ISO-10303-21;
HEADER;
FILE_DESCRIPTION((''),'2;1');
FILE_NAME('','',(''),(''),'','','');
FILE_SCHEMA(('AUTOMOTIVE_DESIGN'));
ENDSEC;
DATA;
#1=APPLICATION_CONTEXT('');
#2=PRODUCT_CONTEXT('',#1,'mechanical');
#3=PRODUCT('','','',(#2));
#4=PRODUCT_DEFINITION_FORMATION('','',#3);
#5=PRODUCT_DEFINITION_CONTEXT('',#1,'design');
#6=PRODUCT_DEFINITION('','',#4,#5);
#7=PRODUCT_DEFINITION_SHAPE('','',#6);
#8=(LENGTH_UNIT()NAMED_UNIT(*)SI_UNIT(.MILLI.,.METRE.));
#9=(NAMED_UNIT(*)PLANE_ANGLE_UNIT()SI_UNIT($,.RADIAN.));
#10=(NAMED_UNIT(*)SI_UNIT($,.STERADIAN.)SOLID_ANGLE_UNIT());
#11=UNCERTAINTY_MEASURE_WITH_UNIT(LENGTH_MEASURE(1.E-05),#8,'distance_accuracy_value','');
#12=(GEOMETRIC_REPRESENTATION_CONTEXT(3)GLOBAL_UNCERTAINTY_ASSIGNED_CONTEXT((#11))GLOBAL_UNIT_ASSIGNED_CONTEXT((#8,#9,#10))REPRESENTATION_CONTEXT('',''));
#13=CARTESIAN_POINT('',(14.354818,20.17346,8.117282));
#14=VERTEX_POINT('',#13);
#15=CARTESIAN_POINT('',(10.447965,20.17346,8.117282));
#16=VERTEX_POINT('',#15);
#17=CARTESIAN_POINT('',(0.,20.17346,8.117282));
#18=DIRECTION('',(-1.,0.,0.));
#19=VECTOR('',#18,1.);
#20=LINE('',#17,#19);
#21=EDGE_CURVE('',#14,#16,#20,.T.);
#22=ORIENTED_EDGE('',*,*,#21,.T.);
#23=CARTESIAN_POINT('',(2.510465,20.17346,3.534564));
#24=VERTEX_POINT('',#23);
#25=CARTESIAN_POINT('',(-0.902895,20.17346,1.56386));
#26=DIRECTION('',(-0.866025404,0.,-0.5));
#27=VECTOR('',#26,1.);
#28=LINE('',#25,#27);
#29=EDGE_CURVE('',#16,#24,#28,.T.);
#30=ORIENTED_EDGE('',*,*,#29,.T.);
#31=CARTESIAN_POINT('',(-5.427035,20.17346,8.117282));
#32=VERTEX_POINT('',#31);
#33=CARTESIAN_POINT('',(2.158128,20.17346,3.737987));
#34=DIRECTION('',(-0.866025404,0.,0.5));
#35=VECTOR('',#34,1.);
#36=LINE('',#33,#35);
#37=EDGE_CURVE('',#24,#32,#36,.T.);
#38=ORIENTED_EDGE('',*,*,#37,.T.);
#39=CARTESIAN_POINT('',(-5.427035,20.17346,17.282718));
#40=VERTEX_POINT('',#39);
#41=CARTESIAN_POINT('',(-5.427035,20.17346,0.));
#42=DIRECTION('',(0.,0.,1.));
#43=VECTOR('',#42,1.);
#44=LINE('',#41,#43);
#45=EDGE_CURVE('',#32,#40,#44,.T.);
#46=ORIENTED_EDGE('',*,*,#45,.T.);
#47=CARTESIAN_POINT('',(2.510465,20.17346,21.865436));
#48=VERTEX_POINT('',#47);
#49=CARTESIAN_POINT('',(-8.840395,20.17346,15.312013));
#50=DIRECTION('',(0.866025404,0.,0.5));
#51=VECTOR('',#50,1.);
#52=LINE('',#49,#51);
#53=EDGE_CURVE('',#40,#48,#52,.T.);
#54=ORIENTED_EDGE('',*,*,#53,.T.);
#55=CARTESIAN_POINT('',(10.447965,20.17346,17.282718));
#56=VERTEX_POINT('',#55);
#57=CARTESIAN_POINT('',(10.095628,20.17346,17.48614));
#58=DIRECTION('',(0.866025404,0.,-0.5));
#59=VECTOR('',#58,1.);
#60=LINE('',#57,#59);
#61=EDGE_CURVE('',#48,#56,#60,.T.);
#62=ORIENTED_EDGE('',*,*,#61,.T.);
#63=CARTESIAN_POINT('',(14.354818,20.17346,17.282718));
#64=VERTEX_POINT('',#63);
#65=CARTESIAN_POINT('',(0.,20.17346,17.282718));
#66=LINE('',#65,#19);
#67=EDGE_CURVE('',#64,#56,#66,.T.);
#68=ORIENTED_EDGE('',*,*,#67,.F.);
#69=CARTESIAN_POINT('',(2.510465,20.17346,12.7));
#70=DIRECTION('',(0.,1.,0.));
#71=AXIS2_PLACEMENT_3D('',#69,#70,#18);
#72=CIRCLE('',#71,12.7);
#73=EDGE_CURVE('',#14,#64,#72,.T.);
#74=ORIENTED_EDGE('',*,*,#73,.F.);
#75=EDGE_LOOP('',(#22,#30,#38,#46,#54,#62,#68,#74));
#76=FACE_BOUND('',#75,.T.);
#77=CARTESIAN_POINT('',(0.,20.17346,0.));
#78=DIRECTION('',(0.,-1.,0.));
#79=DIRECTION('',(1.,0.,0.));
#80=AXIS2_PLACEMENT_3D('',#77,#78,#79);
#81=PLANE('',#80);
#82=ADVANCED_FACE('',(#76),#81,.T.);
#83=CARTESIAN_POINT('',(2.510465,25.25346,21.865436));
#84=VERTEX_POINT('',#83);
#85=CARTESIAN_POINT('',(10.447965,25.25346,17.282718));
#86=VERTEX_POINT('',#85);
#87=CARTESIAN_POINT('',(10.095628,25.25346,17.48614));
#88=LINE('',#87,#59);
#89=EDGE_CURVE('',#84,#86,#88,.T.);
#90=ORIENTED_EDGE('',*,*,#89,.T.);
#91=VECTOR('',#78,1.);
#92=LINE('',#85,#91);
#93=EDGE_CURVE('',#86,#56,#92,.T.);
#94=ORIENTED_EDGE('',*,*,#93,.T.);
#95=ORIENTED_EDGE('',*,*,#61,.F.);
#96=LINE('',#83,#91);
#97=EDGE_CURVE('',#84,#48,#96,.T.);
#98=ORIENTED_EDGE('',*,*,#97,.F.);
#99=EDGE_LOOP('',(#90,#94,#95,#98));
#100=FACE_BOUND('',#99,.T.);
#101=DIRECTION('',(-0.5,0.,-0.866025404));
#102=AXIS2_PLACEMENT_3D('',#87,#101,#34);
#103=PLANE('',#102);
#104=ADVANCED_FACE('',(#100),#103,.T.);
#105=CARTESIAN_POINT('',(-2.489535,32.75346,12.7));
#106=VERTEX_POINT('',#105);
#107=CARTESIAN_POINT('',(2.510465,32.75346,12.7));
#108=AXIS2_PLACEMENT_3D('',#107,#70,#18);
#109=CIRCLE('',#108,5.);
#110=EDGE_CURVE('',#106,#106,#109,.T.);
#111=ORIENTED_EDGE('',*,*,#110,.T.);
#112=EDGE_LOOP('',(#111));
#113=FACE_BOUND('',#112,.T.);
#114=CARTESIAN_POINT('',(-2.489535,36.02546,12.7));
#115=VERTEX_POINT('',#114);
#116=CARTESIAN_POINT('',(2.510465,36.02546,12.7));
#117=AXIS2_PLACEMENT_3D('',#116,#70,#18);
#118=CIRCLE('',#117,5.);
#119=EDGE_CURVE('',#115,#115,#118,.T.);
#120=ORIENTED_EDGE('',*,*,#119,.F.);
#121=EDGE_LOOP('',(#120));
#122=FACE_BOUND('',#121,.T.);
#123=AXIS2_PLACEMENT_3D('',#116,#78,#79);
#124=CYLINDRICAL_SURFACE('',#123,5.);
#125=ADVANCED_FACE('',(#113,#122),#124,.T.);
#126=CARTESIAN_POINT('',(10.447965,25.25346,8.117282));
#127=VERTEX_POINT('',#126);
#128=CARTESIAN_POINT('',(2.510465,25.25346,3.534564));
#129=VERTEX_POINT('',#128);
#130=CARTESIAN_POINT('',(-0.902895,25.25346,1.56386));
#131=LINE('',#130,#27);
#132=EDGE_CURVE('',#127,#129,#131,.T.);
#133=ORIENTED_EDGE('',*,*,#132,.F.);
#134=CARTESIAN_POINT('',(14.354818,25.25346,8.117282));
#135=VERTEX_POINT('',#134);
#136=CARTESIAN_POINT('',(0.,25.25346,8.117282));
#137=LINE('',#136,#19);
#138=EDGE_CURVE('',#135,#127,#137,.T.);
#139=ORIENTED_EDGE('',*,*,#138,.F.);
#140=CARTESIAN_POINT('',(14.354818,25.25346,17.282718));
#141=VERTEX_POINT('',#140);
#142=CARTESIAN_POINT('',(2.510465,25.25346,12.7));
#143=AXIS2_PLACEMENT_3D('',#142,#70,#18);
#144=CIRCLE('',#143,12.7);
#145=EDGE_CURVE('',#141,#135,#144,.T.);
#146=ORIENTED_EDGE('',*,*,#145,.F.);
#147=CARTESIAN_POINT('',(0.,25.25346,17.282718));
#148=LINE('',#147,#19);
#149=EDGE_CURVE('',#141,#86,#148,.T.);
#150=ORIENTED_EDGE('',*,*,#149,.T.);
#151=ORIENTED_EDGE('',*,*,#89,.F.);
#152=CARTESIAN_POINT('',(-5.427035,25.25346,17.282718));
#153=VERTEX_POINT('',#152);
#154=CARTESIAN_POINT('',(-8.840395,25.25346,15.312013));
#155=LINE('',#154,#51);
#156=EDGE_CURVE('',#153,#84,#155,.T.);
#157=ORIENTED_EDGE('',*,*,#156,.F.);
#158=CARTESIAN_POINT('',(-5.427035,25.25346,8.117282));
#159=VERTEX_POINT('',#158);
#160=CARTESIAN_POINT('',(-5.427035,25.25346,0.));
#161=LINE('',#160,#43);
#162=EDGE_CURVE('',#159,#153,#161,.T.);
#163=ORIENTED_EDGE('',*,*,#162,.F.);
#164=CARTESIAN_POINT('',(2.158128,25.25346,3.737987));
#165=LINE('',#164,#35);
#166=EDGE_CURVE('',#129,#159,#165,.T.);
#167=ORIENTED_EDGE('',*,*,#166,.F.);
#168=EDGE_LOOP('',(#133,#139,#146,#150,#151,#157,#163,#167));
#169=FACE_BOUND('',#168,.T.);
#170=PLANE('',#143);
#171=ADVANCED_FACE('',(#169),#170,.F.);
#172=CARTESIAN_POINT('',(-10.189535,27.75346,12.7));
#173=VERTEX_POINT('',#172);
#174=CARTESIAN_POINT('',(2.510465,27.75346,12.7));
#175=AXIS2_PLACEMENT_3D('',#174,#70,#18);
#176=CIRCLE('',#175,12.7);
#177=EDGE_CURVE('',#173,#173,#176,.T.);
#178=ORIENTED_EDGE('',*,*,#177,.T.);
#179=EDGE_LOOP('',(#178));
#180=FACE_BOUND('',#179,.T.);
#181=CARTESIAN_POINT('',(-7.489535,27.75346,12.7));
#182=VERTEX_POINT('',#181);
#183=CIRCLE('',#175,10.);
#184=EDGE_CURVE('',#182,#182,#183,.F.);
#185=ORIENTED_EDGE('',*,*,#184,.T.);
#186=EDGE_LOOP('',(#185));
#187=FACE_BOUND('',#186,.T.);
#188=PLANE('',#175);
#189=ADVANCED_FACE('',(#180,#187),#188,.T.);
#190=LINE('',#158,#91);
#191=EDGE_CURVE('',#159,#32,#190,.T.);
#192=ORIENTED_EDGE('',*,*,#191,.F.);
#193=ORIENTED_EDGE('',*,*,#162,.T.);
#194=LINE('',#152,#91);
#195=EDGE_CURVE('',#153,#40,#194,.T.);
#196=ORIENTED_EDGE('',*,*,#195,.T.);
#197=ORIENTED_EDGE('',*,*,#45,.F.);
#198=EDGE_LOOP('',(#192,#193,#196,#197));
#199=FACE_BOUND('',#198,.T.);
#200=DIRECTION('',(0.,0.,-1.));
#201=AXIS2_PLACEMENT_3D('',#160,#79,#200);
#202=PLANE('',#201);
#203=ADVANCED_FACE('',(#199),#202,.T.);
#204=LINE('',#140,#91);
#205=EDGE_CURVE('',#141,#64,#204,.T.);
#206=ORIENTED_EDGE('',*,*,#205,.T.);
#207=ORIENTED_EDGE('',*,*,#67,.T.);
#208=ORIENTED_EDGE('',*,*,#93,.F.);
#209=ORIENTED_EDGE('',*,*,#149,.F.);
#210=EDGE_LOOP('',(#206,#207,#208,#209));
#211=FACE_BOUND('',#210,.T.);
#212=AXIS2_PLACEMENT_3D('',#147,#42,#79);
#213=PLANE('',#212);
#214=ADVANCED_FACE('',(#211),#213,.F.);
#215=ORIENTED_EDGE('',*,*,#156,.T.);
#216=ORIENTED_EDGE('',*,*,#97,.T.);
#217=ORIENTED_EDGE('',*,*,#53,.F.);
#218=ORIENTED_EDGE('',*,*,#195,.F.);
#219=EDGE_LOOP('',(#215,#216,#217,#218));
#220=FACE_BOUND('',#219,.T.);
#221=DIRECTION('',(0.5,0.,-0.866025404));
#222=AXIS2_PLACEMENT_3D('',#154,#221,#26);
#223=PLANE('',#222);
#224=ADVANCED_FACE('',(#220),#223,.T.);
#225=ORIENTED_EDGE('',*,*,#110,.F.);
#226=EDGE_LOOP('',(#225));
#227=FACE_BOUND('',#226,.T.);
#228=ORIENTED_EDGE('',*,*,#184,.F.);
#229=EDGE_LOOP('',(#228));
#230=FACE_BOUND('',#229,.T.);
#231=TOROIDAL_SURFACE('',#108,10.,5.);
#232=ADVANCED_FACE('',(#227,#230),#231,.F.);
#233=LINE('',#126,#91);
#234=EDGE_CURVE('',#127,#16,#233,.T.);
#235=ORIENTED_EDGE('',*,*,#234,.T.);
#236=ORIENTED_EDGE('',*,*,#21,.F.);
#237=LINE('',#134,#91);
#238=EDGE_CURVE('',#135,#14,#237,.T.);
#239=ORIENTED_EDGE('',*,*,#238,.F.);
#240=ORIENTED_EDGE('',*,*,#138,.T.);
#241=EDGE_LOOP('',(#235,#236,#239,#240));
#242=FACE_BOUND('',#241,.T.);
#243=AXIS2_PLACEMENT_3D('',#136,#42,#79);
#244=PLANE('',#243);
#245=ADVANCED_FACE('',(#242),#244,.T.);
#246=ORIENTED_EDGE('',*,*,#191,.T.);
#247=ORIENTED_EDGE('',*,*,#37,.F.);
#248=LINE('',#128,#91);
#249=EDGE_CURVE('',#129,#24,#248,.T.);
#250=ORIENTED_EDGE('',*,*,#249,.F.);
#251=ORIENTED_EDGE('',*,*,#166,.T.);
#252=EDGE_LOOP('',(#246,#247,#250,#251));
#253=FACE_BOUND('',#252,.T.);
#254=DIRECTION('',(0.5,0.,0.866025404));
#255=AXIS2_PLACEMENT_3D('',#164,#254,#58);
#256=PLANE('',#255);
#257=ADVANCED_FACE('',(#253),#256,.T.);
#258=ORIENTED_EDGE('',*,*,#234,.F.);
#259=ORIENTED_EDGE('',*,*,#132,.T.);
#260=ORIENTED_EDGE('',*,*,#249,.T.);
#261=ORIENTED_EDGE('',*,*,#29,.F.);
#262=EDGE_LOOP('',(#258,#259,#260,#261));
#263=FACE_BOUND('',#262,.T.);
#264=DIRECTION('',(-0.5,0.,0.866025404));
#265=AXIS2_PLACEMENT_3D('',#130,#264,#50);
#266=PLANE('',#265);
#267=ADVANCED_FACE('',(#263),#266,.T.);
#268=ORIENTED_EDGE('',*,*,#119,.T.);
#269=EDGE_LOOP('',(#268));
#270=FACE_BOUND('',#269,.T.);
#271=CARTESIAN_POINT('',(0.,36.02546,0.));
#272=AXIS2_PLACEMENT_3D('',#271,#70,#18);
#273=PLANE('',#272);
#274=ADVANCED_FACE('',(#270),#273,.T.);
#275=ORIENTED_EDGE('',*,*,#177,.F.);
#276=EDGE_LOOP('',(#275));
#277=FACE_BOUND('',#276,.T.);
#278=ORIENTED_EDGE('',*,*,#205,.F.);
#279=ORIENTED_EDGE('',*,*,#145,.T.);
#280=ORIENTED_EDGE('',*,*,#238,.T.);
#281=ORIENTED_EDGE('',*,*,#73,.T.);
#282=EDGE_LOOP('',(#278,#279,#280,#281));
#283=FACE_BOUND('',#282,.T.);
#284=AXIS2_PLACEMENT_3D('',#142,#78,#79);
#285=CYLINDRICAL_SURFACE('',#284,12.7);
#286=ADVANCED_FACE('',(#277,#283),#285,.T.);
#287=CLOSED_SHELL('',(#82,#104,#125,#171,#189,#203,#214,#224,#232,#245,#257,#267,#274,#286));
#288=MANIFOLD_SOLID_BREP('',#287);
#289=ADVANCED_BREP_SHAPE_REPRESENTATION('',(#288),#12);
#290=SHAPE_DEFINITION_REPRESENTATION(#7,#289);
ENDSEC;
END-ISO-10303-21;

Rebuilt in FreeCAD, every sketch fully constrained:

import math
import FreeCAD as App
import Part
import Sketcher

V = App.Vector
Q = App.Units.Quantity


def edges_at(feature, points):
    """Names of the edges that pass closest to the given points."""
    edges = feature.Shape.Edges
    near = lambda p: min(range(len(edges)), key=lambda i: edges[i].distToShape(Part.Vertex(*p))[0])
    return sorted({f"Edge{near(p) + 1}" for p in points})


def add_polygon(sketch, points):
    """Adds a closed chain of lines whose ends are joined by coincident constraints."""
    first, n = sketch.GeometryCount, len(points)
    for a, b in zip(points, points[1:] + points[:1]):
        sketch.addGeometry(Part.LineSegment(App.Vector(*a, 0), App.Vector(*b, 0)), False)
    for i in range(n):
        sketch.addConstraint(Sketcher.Constraint("Coincident", first + i, 2, first + (i + 1) % n, 1))

doc = App.newDocument("Part")
params = doc.addObject("Spreadsheet::Sheet", "Params")
for row, (alias, value) in enumerate([
    ("sketch1_width", "6 mm"),
    ("sketch1_height", "9 mm"),
    ("sketch1_width2", "25.4 mm"),
    ("pad1_length", "25.4 mm"),
    ("sketch2_radius", "12.7 mm"),
    ("pad2_length", "5.08 mm"),
    ("sketch3_width", "37.4 mm"),
    ("sketch3_height", "25.4 mm"),
    ("pocket1_length", "25.4 mm"),
    ("sketch4_diameter", "25.4 mm"),
    ("pad3_length", "2.5 mm"),
    ("sketch5_diameter", "10 mm"),
    ("pad4_length", "8.272 mm"),
    ("fillet_radius", "5 mm"),
], start=1):
    params.set(f"A{row}", alias)
    params.set(f"B{row}", "=" + value)
    params.setAlias(f"B{row}", alias)

body = doc.addObject("PartDesign::Body", "Body")

# Sketch on XY plane
sketch1 = body.newObject("Sketcher::SketchObject", "Sketch")
sketch1.AttachmentSupport = (doc.getObject("XY_Plane"), [""])
sketch1.MapMode = "FlatFace"
add_polygon(sketch1, [(-10.189535, 0), (-10.189535, 9), (15.210465, 9), (15.210465, 0), (21.210465, 0), (21.210465, 20.17346), (-16.189535, 20.17346), (-16.189535, 0)])  # lines 0-7
sketch1.addConstraint(Sketcher.Constraint("Vertical", 0))
sketch1.addConstraint(Sketcher.Constraint("Horizontal", 1))
sketch1.addConstraint(Sketcher.Constraint("Vertical", 2))
sketch1.addConstraint(Sketcher.Constraint("Horizontal", 3))
sketch1.addConstraint(Sketcher.Constraint("Vertical", 4))
sketch1.addConstraint(Sketcher.Constraint("Horizontal", 5))
sketch1.addConstraint(Sketcher.Constraint("Vertical", 6))
sketch1.addConstraint(Sketcher.Constraint("Horizontal", 7))
sketch1.addConstraint(Sketcher.Constraint("PointOnObject", 2, 2, -1))
sketch1.addConstraint(Sketcher.Constraint("PointOnObject", 6, 2, -1))
sketch1.addConstraint(Sketcher.Constraint("Equal", 3, 7))
sketch1.addConstraint(Sketcher.Constraint("DistanceX", 3, 1, 3, 2, 6.0))
sketch1.addConstraint(Sketcher.Constraint("DistanceY", 0, 1, 0, 2, 9.0))
sketch1.addConstraint(Sketcher.Constraint("DistanceX", 1, 1, 1, 2, 25.4))
sketch1.addConstraint(Sketcher.Constraint("DistanceY", 4, 1, 4, 2, 20.17346))
sketch1.addConstraint(Sketcher.Constraint("DistanceX", 0, 2, -1, 1, 10.189535))
sketch1.setExpression("Constraints[19]", "Params.sketch1_width")
sketch1.setExpression("Constraints[20]", "Params.sketch1_height")
sketch1.setExpression("Constraints[21]", "Params.sketch1_width2")
pad1 = body.newObject("PartDesign::Pad", "Pad")
pad1.Profile = sketch1
pad1.setExpression("Length", "Params.pad1_length")

# Sketch on XZ plane
sketch2 = body.newObject("Sketcher::SketchObject", "Sketch001")
sketch2.AttachmentSupport = (doc.getObject("XZ_Plane"), [""])
sketch2.MapMode = "FlatFace"
sketch2.AttachmentOffset = App.Placement(V(0, 0, -20.17346), App.Rotation())
sketch2.addGeometry(Part.LineSegment(V(14.354818, 17.282718, 0), V(10.447965, 17.282718, 0)), False)
sketch2.addGeometry(Part.LineSegment(V(10.447965, 17.282718, 0), V(2.510465, 21.865436, 0)), False)
sketch2.addGeometry(Part.LineSegment(V(2.510465, 21.865436, 0), V(-5.427035, 17.282718, 0)), False)
sketch2.addGeometry(Part.LineSegment(V(-5.427035, 17.282718, 0), V(-5.427035, 8.117282, 0)), False)
sketch2.addGeometry(Part.LineSegment(V(-5.427035, 8.117282, 0), V(2.510465, 3.534564, 0)), False)
sketch2.addGeometry(Part.LineSegment(V(2.510465, 3.534564, 0), V(10.447965, 8.117282, 0)), False)
sketch2.addGeometry(Part.LineSegment(V(10.447965, 8.117282, 0), V(14.354818, 8.117282, 0)), False)
sketch2.addGeometry(Part.ArcOfCircle(Part.Circle(V(2.510465, 12.7, 0), V(0, 0, 1), 12.7), math.radians(21.152033), math.radians(338.847967)), False)
sketch2.addConstraint(Sketcher.Constraint("Coincident", 0, 2, 1, 1))
sketch2.addConstraint(Sketcher.Constraint("Coincident", 1, 2, 2, 1))
sketch2.addConstraint(Sketcher.Constraint("Coincident", 2, 2, 3, 1))
sketch2.addConstraint(Sketcher.Constraint("Coincident", 3, 2, 4, 1))
sketch2.addConstraint(Sketcher.Constraint("Coincident", 4, 2, 5, 1))
sketch2.addConstraint(Sketcher.Constraint("Coincident", 5, 2, 6, 1))
sketch2.addConstraint(Sketcher.Constraint("Coincident", 6, 2, 7, 2))
sketch2.addConstraint(Sketcher.Constraint("Coincident", 7, 1, 0, 1))
sketch2.addConstraint(Sketcher.Constraint("Horizontal", 0))
sketch2.addConstraint(Sketcher.Constraint("Vertical", 3))
sketch2.addConstraint(Sketcher.Constraint("Horizontal", 6))
sketch2.addConstraint(Sketcher.Constraint("Parallel", 1, 4))
sketch2.addConstraint(Sketcher.Constraint("Parallel", 2, 5))
sketch2.addConstraint(Sketcher.Constraint("Horizontal", 0, 2, 2, 2))
sketch2.addConstraint(Sketcher.Constraint("Horizontal", 3, 2, 5, 2))
sketch2.addConstraint(Sketcher.Constraint("Vertical", 7, 3, 1, 2))
sketch2.addConstraint(Sketcher.Constraint("Vertical", 1, 2, 4, 2))
sketch2.addConstraint(Sketcher.Constraint("Vertical", 0, 2, 5, 2))
sketch2.addConstraint(Sketcher.Constraint("Vertical", 6, 2, 7, 1))
sketch2.addConstraint(Sketcher.Constraint("Radius", 7, 12.7))
sketch2.addConstraint(Sketcher.Constraint("Angle", 1, Q("150 deg")))
sketch2.addConstraint(Sketcher.Constraint("DistanceY", -1, 1, 7, 3, 12.7))
sketch2.addConstraint(Sketcher.Constraint("DistanceX", 2, 2, 0, 2, 15.875))
sketch2.addConstraint(Sketcher.Constraint("DistanceX", 0, 2, 0, 1, 3.906853))
sketch2.addConstraint(Sketcher.Constraint("DistanceX", -1, 1, 6, 2, 14.354818))
sketch2.setExpression("Constraints[19]", "Params.sketch2_radius")
pad2 = body.newObject("PartDesign::Pad", "Pad001")
pad2.Profile = sketch2
pad2.setExpression("Length", "Params.pad2_length")
pad2.Reversed = True

# Sketch on XZ plane
sketch3 = body.newObject("Sketcher::SketchObject", "Sketch002")
sketch3.AttachmentSupport = (doc.getObject("XZ_Plane"), [""])
sketch3.MapMode = "FlatFace"
sketch3.AttachmentOffset = App.Placement(V(0, 0, -20.17346), App.Rotation())
add_polygon(sketch3, [(-16.189535, 0), (-16.189535, 25.4), (21.210465, 25.4), (21.210465, 0)])  # lines 0-3
sketch3.addConstraint(Sketcher.Constraint("Vertical", 0))
sketch3.addConstraint(Sketcher.Constraint("Horizontal", 1))
sketch3.addConstraint(Sketcher.Constraint("Vertical", 2))
sketch3.addConstraint(Sketcher.Constraint("Horizontal", 3))
sketch3.addConstraint(Sketcher.Constraint("PointOnObject", 2, 2, -1))
sketch3.addConstraint(Sketcher.Constraint("DistanceX", 1, 1, 1, 2, 37.4))
sketch3.addConstraint(Sketcher.Constraint("DistanceY", 0, 1, 0, 2, 25.4))
sketch3.addConstraint(Sketcher.Constraint("DistanceX", 0, 2, -1, 1, 16.189535))
sketch3.setExpression("Constraints[9]", "Params.sketch3_width")
sketch3.setExpression("Constraints[10]", "Params.sketch3_height")
pocket1 = body.newObject("PartDesign::Pocket", "Pocket")
pocket1.Profile = sketch3
pocket1.setExpression("Length", "Params.pocket1_length")
pocket1.Reversed = True

# Sketch on XZ plane
sketch4 = body.newObject("Sketcher::SketchObject", "Sketch003")
sketch4.AttachmentSupport = (doc.getObject("XZ_Plane"), [""])
sketch4.MapMode = "FlatFace"
sketch4.AttachmentOffset = App.Placement(V(0, 0, -25.25346), App.Rotation())
sketch4.addGeometry(Part.Circle(V(2.510465, 12.7, 0), V(0, 0, 1), 12.7), False)
sketch4.addConstraint(Sketcher.Constraint("Diameter", 0, 25.4))
sketch4.addConstraint(Sketcher.Constraint("DistanceY", -1, 1, 0, 3, 12.7))
sketch4.addConstraint(Sketcher.Constraint("DistanceX", -1, 1, 0, 3, 2.510465))
sketch4.setExpression("Constraints[0]", "Params.sketch4_diameter")
pad3 = body.newObject("PartDesign::Pad", "Pad002")
pad3.Profile = sketch4
pad3.setExpression("Length", "Params.pad3_length")
pad3.Reversed = True

# Sketch on XZ plane
sketch5 = body.newObject("Sketcher::SketchObject", "Sketch004")
sketch5.AttachmentSupport = (doc.getObject("XZ_Plane"), [""])
sketch5.MapMode = "FlatFace"
sketch5.AttachmentOffset = App.Placement(V(0, 0, -27.75346), App.Rotation())
sketch5.addGeometry(Part.Circle(V(2.510465, 12.7, 0), V(0, 0, 1), 5), False)
sketch5.addConstraint(Sketcher.Constraint("Diameter", 0, 10.0))
sketch5.addConstraint(Sketcher.Constraint("DistanceY", -1, 1, 0, 3, 12.7))
sketch5.addConstraint(Sketcher.Constraint("DistanceX", -1, 1, 0, 3, 2.510465))
sketch5.setExpression("Constraints[0]", "Params.sketch5_diameter")
pad4 = body.newObject("PartDesign::Pad", "Pad003")
pad4.Profile = sketch5
pad4.setExpression("Length", "Params.pad4_length")
pad4.Reversed = True
doc.recompute()

fillet = body.newObject("PartDesign::Fillet", "Fillet")
fillet.Base = (pad4, edges_at(pad4, [(-2.49, 27.753, 12.7)]))
fillet.setExpression("Radius", "Params.fillet_radius")

doc.recompute()
